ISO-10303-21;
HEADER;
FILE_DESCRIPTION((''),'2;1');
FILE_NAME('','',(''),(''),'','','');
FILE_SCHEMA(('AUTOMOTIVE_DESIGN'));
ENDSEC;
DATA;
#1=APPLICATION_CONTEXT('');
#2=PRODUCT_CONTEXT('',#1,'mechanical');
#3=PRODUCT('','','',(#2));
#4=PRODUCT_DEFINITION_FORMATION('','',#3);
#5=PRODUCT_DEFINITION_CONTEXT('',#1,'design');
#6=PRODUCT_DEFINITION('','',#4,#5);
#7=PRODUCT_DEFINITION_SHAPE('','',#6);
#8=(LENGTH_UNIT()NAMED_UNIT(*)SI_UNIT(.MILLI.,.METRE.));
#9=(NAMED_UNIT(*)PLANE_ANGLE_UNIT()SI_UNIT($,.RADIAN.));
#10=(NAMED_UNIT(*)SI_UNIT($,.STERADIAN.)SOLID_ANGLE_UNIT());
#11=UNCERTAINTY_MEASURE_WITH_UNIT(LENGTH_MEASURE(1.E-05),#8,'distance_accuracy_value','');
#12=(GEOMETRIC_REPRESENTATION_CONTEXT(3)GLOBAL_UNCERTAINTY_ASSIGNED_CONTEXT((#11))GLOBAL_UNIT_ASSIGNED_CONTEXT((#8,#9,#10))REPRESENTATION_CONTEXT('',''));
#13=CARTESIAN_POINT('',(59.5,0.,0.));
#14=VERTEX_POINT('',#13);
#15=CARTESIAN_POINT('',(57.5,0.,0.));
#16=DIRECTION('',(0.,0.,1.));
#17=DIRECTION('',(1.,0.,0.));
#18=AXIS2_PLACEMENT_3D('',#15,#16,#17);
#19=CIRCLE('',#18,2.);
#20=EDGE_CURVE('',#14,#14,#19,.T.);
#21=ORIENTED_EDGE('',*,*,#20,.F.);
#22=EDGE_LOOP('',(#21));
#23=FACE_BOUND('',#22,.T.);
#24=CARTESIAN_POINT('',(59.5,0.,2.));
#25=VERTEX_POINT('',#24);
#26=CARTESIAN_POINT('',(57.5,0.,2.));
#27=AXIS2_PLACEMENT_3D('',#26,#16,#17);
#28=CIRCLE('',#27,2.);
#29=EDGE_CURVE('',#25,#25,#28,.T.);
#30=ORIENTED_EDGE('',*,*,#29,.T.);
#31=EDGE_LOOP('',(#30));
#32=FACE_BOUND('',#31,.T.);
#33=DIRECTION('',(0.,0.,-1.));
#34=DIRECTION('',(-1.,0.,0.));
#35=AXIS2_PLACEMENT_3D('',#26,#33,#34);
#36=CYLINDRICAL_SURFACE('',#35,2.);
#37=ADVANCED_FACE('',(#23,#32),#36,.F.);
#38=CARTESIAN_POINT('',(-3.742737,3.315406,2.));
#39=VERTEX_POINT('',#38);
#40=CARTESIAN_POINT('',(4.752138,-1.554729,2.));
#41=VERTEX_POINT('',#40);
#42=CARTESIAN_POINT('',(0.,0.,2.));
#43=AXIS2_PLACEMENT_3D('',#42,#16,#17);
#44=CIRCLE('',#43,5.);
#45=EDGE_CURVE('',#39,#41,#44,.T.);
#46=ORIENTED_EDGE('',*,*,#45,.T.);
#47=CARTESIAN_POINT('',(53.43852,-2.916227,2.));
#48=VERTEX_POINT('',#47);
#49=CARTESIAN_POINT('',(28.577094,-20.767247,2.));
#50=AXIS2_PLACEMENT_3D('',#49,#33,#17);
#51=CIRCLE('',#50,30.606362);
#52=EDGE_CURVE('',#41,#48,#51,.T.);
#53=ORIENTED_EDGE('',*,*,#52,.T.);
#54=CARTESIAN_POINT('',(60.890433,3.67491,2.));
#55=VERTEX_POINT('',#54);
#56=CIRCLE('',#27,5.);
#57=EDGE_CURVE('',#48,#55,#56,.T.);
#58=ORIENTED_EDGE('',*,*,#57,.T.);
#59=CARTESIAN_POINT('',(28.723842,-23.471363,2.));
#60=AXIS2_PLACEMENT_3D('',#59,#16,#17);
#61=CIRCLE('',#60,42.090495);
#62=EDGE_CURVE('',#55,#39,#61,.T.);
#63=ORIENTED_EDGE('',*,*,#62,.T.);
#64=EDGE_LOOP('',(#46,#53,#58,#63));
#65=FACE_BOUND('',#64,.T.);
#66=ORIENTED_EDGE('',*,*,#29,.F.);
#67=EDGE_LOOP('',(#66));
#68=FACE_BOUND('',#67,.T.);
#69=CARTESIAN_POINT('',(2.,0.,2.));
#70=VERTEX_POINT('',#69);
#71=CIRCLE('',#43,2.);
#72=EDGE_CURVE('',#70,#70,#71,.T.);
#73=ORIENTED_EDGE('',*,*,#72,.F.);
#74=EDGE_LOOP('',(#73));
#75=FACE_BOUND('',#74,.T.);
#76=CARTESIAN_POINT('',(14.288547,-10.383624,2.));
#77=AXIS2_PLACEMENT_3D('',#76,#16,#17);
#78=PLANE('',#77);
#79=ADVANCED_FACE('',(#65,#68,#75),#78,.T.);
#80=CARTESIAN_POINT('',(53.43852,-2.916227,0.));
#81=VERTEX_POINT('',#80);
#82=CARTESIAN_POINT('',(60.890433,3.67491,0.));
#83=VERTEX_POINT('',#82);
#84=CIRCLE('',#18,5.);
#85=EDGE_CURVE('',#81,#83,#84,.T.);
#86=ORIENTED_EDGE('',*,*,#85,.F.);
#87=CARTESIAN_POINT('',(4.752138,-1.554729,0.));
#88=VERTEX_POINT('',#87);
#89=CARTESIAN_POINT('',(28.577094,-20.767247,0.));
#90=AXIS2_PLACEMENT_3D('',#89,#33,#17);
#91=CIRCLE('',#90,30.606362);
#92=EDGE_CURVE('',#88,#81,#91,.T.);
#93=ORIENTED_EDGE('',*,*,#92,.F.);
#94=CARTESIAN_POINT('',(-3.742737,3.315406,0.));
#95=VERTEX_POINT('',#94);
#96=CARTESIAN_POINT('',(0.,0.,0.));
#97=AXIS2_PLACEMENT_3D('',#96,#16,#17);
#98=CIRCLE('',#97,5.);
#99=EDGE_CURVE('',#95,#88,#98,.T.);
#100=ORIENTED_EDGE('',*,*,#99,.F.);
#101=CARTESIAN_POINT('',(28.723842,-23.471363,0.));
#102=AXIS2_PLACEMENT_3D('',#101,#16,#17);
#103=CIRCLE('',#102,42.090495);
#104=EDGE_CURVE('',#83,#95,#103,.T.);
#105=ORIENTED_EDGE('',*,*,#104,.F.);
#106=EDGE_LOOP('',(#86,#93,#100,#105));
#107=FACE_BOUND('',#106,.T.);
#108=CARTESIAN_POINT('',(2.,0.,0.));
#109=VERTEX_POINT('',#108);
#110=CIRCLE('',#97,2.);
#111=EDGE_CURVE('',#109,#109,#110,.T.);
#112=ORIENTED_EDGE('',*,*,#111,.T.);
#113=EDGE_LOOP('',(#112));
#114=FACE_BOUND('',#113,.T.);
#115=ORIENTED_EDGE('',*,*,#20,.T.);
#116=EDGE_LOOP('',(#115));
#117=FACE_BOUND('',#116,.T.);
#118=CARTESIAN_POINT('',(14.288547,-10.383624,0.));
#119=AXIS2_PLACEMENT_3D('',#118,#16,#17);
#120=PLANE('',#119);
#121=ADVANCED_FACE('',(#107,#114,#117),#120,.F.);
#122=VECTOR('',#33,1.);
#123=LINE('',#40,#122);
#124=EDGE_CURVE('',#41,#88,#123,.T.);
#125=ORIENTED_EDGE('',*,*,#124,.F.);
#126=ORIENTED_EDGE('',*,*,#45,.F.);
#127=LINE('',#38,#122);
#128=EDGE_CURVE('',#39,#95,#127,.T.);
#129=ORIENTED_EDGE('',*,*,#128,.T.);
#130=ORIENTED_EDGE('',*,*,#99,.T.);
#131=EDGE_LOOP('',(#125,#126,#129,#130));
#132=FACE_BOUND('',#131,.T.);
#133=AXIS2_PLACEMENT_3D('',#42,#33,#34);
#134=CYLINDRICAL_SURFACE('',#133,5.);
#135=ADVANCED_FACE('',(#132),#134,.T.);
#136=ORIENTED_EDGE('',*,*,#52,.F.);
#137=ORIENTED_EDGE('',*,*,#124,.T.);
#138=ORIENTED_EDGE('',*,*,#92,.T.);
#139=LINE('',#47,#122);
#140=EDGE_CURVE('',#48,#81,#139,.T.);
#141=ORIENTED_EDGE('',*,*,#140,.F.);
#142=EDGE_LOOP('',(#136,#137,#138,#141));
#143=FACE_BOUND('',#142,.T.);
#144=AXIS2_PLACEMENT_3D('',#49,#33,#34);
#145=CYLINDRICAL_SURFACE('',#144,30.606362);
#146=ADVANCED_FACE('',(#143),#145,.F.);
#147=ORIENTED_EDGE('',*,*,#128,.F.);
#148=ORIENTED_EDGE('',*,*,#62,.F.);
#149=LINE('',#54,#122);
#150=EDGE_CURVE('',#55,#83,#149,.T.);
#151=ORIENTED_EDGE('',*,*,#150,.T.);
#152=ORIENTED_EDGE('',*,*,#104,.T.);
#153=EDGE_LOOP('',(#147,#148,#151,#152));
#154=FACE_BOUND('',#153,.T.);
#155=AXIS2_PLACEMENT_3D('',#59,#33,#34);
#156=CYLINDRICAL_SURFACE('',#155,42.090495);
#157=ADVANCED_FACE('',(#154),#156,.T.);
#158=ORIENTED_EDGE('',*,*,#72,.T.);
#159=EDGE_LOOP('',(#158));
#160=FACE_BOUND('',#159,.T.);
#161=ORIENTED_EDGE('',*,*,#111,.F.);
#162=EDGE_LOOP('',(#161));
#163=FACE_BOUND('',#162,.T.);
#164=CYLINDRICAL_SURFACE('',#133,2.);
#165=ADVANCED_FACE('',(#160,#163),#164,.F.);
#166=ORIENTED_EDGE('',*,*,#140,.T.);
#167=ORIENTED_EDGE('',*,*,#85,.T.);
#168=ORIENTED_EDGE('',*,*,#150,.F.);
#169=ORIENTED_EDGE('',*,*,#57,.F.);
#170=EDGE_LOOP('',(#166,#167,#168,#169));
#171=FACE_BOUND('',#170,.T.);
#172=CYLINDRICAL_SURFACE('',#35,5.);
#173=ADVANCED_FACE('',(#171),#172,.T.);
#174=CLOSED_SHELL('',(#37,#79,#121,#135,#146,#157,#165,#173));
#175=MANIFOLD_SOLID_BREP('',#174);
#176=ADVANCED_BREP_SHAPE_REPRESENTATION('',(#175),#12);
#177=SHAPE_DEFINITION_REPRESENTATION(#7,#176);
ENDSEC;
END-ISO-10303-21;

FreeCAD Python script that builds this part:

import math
import FreeCAD as App
import Part
import Sketcher
from FreeCAD import Vector

doc = App.newDocument("Part")
params = doc.addObject("Spreadsheet::Sheet", "Params")
for row, (alias, value) in enumerate([
    ("sketch1_diameter", "4 mm"),
    ("sketch1_radius", "5 mm"),
    ("pad1_length", "2 mm"),
], start=1):
    params.set(f"A{row}", alias)
    params.set(f"B{row}", "=" + value)
    params.setAlias(f"B{row}", alias)

body = doc.addObject("PartDesign::Body", "Body")

# Sketch on XY plane
sketch1 = body.newObject("Sketcher::SketchObject", "Sketch")
sketch1.AttachmentSupport = (doc.getObject("XY_Plane"), [""])
sketch1.MapMode = "FlatFace"
sketch1.addGeometry(Part.ArcOfCircle(Part.Circle(Vector(28.6, -20.8, 0), Vector(0, 0, 1), 30.6), math.radians(36), math.radians(141)), False)
sketch1.addGeometry(Part.ArcOfCircle(Part.Circle(Vector(57.5, 0, 0), Vector(0, 0, 1), 5), math.radians(-144), math.radians(47)), False)
sketch1.addGeometry(Part.ArcOfCircle(Part.Circle(Vector(28.7, -23.5, 0), Vector(0, 0, 1), 42.1), math.radians(40), math.radians(140)), False)
sketch1.addGeometry(Part.ArcOfCircle(Part.Circle(Vector(0, 0, 0), Vector(0, 0, 1), 5), math.radians(138), math.radians(342)), False)
sketch1.addGeometry(Part.Circle(Vector(57.5, 0, 0), Vector(0, 0, 1), 2), False)
sketch1.addGeometry(Part.Circle(Vector(0, 0, 0), Vector(0, 0, 1), 2), False)
sketch1.addConstraint(Sketcher.Constraint("Tangent", 0, 1, 1, 1))
sketch1.addConstraint(Sketcher.Constraint("Coincident", 1, 2, 2, 1))
sketch1.addConstraint(Sketcher.Constraint("Coincident", 2, 2, 3, 1))
sketch1.addConstraint(Sketcher.Constraint("Coincident", 3, 2, 0, 2))
sketch1.addConstraint(Sketcher.Constraint("Coincident", 3, 3, -1, 1))
sketch1.addConstraint(Sketcher.Constraint("Coincident", 5, 3, -1, 1))
sketch1.addConstraint(Sketcher.Constraint("Coincident", 4, 3, 1, 3))
sketch1.addConstraint(Sketcher.Constraint("Equal", 1, 3))
sketch1.addConstraint(Sketcher.Constraint("Equal", 4, 5))
sketch1.addConstraint(Sketcher.Constraint("PointOnObject", 1, 3, -1))
sketch1.addConstraint(Sketcher.Constraint("Diameter", 4, 4.0))
sketch1.addConstraint(Sketcher.Constraint("Radius", 1, 5.0))
sketch1.addConstraint(Sketcher.Constraint("DistanceX", -1, 1, 1, 3, 57.5))
sketch1.addConstraint(Sketcher.Constraint("Radius", 0, 30.606362))
sketch1.addConstraint(Sketcher.Constraint("Radius", 2, 42.090495))
sketch1.addConstraint(Sketcher.Constraint("DistanceX", -1, 1, 2, 3, 28.723842))
sketch1.addConstraint(Sketcher.Constraint("DistanceX", -1, 1, 0, 1, 53.43852))
sketch1.addConstraint(Sketcher.Constraint("DistanceY", -1, 1, 1, 2, 3.67491))
sketch1.setExpression("Constraints[10]", "Params.sketch1_diameter")
sketch1.setExpression("Constraints[11]", "Params.sketch1_radius")
pad1 = body.newObject("PartDesign::Pad", "Pad")
pad1.Profile = sketch1
pad1.setExpression("Length", "Params.pad1_length")

doc.recompute()
